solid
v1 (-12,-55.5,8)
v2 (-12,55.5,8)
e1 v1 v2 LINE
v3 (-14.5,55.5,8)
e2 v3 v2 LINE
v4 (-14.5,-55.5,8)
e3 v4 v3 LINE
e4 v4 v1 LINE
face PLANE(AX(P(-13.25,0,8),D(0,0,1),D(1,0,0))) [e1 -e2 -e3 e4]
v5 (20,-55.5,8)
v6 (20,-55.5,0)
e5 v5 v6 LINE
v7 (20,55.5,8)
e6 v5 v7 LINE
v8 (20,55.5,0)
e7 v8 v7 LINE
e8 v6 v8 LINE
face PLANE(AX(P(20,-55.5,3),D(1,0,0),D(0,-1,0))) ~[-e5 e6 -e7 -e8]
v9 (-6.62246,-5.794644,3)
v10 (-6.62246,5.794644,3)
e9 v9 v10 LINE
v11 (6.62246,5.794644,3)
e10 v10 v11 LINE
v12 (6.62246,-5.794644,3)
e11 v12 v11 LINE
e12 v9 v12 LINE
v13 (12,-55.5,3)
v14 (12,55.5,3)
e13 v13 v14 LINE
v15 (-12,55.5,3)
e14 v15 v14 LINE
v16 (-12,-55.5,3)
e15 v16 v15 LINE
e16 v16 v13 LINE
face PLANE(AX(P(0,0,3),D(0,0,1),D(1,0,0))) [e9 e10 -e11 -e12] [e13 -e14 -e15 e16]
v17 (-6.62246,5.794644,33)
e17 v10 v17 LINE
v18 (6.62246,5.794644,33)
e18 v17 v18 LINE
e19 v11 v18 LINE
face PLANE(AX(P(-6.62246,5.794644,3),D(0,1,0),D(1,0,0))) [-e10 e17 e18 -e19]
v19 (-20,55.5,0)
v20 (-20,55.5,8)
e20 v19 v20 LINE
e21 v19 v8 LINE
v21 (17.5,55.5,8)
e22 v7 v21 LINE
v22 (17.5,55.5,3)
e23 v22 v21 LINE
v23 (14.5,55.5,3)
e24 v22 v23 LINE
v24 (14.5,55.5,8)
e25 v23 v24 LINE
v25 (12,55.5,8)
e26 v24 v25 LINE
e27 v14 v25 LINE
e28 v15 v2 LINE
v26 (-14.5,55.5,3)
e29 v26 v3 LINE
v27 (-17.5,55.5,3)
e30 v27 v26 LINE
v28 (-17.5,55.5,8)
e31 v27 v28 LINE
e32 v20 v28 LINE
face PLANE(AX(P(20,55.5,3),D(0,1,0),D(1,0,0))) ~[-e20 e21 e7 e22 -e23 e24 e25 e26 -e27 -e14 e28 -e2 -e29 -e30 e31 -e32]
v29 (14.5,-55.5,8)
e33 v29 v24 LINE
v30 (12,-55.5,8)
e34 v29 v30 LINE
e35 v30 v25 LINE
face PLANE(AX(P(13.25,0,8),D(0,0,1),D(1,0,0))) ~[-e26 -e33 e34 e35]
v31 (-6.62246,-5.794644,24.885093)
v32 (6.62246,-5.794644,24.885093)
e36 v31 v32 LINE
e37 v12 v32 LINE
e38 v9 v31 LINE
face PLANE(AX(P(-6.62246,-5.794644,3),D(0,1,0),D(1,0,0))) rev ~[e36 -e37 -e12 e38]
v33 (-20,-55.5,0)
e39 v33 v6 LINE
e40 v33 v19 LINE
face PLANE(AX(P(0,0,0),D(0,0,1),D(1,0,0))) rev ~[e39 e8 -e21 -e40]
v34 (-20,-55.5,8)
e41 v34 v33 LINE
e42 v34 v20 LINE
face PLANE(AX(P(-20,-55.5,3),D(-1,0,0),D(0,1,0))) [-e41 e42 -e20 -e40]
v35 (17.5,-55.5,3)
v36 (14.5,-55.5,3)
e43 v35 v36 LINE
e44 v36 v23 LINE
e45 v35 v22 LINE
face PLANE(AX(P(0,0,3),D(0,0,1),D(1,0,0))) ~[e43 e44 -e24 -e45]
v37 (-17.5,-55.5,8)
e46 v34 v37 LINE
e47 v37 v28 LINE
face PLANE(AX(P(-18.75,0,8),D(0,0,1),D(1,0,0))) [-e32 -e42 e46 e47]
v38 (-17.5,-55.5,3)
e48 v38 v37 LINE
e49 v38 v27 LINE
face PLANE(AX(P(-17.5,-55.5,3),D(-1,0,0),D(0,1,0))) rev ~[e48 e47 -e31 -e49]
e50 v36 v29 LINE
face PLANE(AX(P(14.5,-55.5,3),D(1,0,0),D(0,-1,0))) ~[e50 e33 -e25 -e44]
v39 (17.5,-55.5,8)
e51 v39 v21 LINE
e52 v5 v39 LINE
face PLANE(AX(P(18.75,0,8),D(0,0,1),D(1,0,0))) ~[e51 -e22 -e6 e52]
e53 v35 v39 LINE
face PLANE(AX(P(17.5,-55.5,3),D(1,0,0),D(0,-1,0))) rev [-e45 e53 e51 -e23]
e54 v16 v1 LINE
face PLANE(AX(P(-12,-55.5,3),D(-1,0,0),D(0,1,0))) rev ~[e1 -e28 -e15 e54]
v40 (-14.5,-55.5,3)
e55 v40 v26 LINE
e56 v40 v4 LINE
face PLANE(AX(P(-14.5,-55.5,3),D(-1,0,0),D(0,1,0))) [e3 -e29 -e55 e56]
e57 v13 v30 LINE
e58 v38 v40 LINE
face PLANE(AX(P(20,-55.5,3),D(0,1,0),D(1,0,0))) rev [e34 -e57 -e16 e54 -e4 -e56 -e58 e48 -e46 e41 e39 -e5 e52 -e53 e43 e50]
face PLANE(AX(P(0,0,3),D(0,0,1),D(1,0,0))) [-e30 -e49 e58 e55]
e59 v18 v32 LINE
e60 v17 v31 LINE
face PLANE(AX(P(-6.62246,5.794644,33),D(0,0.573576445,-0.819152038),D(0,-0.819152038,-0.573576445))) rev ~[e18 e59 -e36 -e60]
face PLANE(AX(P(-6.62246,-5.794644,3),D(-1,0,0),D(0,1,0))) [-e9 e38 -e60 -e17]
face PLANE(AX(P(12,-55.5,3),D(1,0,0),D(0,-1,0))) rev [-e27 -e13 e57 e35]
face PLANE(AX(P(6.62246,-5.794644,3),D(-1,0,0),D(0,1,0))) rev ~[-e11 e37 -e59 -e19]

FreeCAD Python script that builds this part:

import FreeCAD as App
import Part
import Sketcher
from FreeCAD import Vector
Q = App.Units.Quantity


def add_polygon(sketch, points):
    """Adds a closed chain of lines whose ends are joined by coincident constraints."""
    first, n = sketch.GeometryCount, len(points)
    for a, b in zip(points, points[1:] + points[:1]):
        sketch.addGeometry(Part.LineSegment(App.Vector(*a, 0), App.Vector(*b, 0)), False)
    for i in range(n):
        sketch.addConstraint(Sketcher.Constraint("Coincident", first + i, 2, first + (i + 1) % n, 1))

doc = App.newDocument("Part")
params = doc.addObject("Spreadsheet::Sheet", "Params")
for row, (alias, value) in enumerate([
    ("sketch1_width", "40 mm"),
    ("sketch1_height", "111 mm"),
    ("pad1_length", "3 mm"),
    ("sketch2_height", "111 mm"),
    ("sketch2_width", "2.5 mm"),
    ("pad2_length", "5 mm"),
    ("pad3_length", "30 mm"),
    ("pocket1_length", "25.4 mm"),
], start=1):
    params.set(f"A{row}", alias)
    params.set(f"B{row}", "=" + value)
    params.setAlias(f"B{row}", alias)

body = doc.addObject("PartDesign::Body", "Body")

# Sketch on XY plane
sketch1 = doc.addObject("Sketcher::SketchObject", "Sketch")
body.addObject(sketch1)
sketch1.AttachmentSupport = (doc.XY_Plane, [""])
sketch1.MapMode = "FlatFace"
add_polygon(sketch1, [(-20, 56), (-20, -56), (20, -56), (20, 56)])  # lines 0-3
sketch1.addConstraint([
    Sketcher.Constraint("Vertical", 0),
    Sketcher.Constraint("Horizontal", 1),
    Sketcher.Constraint("Vertical", 2),
    Sketcher.Constraint("Horizontal", 3),
    Sketcher.Constraint("Symmetric", 0, 2, 2, 2, -1, 1),
    Sketcher.Constraint("DistanceX", 1, 1, 1, 2, 40.0),
    Sketcher.Constraint("DistanceY", 0, 2, 0, 1, 111.0),
])
sketch1.setExpression("Constraints[9]", "Params.sketch1_width")
sketch1.setExpression("Constraints[10]", "Params.sketch1_height")
pad1 = doc.addObject("PartDesign::Pad", "Pad")
body.addObject(pad1)
pad1.Profile = sketch1
pad1.setExpression("Length", "Params.pad1_length")

# Sketch on XY plane
sketch2 = doc.addObject("Sketcher::SketchObject", "Sketch001")
body.addObject(sketch2)
sketch2.AttachmentSupport = (doc.XY_Plane, [""])
sketch2.MapMode = "FlatFace"
sketch2.AttachmentOffset = App.Placement(Vector(0, 0, 3), App.Rotation())
add_polygon(sketch2, [(-14.5, 55.5), (-14.5, -55.5), (-12, -55.5), (-12, 55.5)])  # lines 0-3
add_polygon(sketch2, [(-20, 55.5), (-20, -55.5), (-17.5, -55.5), (-17.5, 55.5)])  # lines 4-7
sketch2.addConstraint([
    Sketcher.Constraint("Vertical", 0),
    Sketcher.Constraint("Horizontal", 1),
    Sketcher.Constraint("Vertical", 2),
    Sketcher.Constraint("Horizontal", 3),
    Sketcher.Constraint("Vertical", 4),
    Sketcher.Constraint("Horizontal", 5),
    Sketcher.Constraint("Vertical", 6),
    Sketcher.Constraint("Horizontal", 7),
    Sketcher.Constraint("Horizontal", 1, 2, 4, 2),
    Sketcher.Constraint("Horizontal", 3, 2, 6, 2),
    Sketcher.Constraint("Equal", 3, 5),
    Sketcher.Constraint("DistanceY", 0, 2, 0, 1, 111.0),
    Sketcher.Constraint("DistanceX", 1, 1, 1, 2, 2.5),
    Sketcher.Constraint("DistanceX", 1, 2, -1, 1, 12.0),
    Sketcher.Constraint("DistanceX", 4, 2, -1, 1, 20.0),
    Sketcher.Constraint("DistanceY", 0, 2, -1, 1, 55.5),
])
sketch2.setExpression("Constraints[19]", "Params.sketch2_height")
sketch2.setExpression("Constraints[20]", "Params.sketch2_width")
pad2 = doc.addObject("PartDesign::Pad", "Pad001")
body.addObject(pad2)
pad2.Profile = sketch2
pad2.setExpression("Length", "Params.pad2_length")
body2 = doc.addObject("PartDesign::Body", "Body001")
doc.recompute()

body2.BaseFeature = body
doc.recompute()

mirroring = doc.addObject("Part::Mirroring", "Mirroring")
mirroring.Source = body
mirroring.Base = Vector(0, 0, 0)
mirroring.Normal = Vector(1, 0, 0)
body3 = doc.addObject("PartDesign::Body", "Body002")
body3.BaseFeature = mirroring
boolean = doc.addObject("PartDesign::Boolean", "Boolean")
body2.addObject(boolean)
boolean.Type = "Fuse"
boolean.addObjects([body3])
doc.recompute()

# Sketch on XY plane
sketch3 = doc.addObject("Sketcher::SketchObject", "Sketch002")
body2.addObject(sketch3)
sketch3.AttachmentSupport = (doc.getObject("XY_Plane001"), [""])
sketch3.MapMode = "FlatFace"
sketch3.AttachmentOffset = App.Placement(Vector(0, 0, 3), App.Rotation())
add_polygon(sketch3, [(-7, 6), (-7, -6), (7, -6), (7, 6)])  # lines 0-3
sketch3.addConstraint([
    Sketcher.Constraint("Vertical", 0),
    Sketcher.Constraint("Horizontal", 1),
    Sketcher.Constraint("Vertical", 2),
    Sketcher.Constraint("Horizontal", 3),
    Sketcher.Constraint("Symmetric", 0, 2, 2, 2, -1, 1),
    Sketcher.Constraint("DistanceX", 1, 1, 1, 2, 13.24492),
    Sketcher.Constraint("DistanceY", 0, 2, 0, 1, 11.589288),
])
pad3 = doc.addObject("PartDesign::Pad", "Pad002")
body2.addObject(pad3)
pad3.Profile = sketch3
pad3.setExpression("Length", "Params.pad3_length")

# Sketch on YZ plane
sketch4 = doc.addObject("Sketcher::SketchObject", "Sketch003")
body2.addObject(sketch4)
sketch4.AttachmentSupport = (doc.getObject("YZ_Plane001"), [""])
sketch4.MapMode = "FlatFace"
sketch4.AttachmentOffset = App.Placement(Vector(0, 0, -6.62246), App.Rotation())
add_polygon(sketch4, [(-6, 33), (6, 33), (-6, 25)])  # lines 0-2
sketch4.addConstraint([
    Sketcher.Constraint("Horizontal", 0),
    Sketcher.Constraint("Vertical", 2),
    Sketcher.Constraint("Angle", 1, Q("-144.999999 deg")),
    Sketcher.Constraint("DistanceY", -1, 1, 0, 2, 33.0),
    Sketcher.Constraint("Distance", 1, 14.147908),
    Sketcher.Constraint("DistanceX", -1, 1, 0, 2, 5.794644),
])
pocket1 = doc.addObject("PartDesign::Pocket", "Pocket")
body2.addObject(pocket1)
pocket1.Profile = sketch4
pocket1.setExpression("Length", "Params.pocket1_length")
pocket1.Reversed = True
mirroring.Visibility = False

doc.recompute()
